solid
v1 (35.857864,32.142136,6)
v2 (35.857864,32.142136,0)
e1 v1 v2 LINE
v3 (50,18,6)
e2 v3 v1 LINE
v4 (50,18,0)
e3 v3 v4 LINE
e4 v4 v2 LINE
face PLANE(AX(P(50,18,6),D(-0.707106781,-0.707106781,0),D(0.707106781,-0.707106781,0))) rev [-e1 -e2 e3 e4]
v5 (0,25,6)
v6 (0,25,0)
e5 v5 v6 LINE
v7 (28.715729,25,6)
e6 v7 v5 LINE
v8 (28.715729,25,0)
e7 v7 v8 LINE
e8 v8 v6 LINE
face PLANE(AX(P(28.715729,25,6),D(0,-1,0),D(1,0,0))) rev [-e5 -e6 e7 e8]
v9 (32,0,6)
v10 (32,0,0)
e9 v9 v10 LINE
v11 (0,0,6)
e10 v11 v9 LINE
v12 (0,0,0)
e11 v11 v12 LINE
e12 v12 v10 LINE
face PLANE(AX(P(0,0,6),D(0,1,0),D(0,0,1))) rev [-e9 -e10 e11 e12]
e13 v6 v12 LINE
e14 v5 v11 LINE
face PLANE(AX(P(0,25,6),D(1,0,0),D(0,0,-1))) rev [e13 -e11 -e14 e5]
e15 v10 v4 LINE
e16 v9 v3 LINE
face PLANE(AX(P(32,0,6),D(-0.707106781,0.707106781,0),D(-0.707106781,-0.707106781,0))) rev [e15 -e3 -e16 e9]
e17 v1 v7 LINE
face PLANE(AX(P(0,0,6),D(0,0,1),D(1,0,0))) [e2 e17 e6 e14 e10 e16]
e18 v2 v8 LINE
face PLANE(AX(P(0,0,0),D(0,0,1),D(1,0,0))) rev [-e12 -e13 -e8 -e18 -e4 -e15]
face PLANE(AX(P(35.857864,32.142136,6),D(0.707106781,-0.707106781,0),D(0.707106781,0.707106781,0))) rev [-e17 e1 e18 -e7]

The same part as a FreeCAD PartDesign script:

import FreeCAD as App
import Part
import Sketcher

V = App.Vector
Q = App.Units.Quantity

doc = App.newDocument("Part")
body = doc.addObject("PartDesign::Body", "Body")

# Sketch on XY plane
sketch1 = doc.addObject("Sketcher::SketchObject", "Sketch")
body.addObject(sketch1)
sketch1.AttachmentSupport = (doc.XY_Plane, [""])
sketch1.MapMode = "FlatFace"
sketch1.addGeometry([
    Part.LineSegment(V(0, 0, 0), V(32, 0, 0)),  # 0
    Part.LineSegment(V(32, 0, 0), V(50, 18, 0)),  # 1
    Part.LineSegment(V(50, 18, 0), V(36, 32, 0)),  # 2
    Part.LineSegment(V(36, 32, 0), V(29, 25, 0)),  # 3
    Part.LineSegment(V(29, 25, 0), V(0, 25, 0)),  # 4
    Part.LineSegment(V(0, 25, 0), V(0, 0, 0)),  # 5
], False)
sketch1.addConstraint([
    Sketcher.Constraint("Coincident", 0, 2, 1, 1),
    Sketcher.Constraint("Coincident", 1, 2, 2, 1),
    Sketcher.Constraint("Coincident", 2, 2, 3, 1),
    Sketcher.Constraint("Coincident", 3, 2, 4, 1),
    Sketcher.Constraint("Coincident", 4, 2, 5, 1),
    Sketcher.Constraint("Coincident", 5, 2, 0, 1),
    Sketcher.Constraint("Horizontal", 0),
    Sketcher.Constraint("Horizontal", 4),
    Sketcher.Constraint("Vertical", 5),
    Sketcher.Constraint("Coincident", 5, 2, -1, 1),
    Sketcher.Constraint("Perpendicular", 1, 2),
    Sketcher.Constraint("Perpendicular", 2, 3),
    Sketcher.Constraint("DistanceX", 0, 1, 0, 2, 32.0),
    Sketcher.Constraint("DistanceY", 5, 2, 5, 1, 25.0),
    Sketcher.Constraint("Angle", 1, Q("45 deg")),
    Sketcher.Constraint("Distance", 2, 20.0),
    Sketcher.Constraint("DistanceX", -1, 1, 1, 2, 50.0),
])
pad1 = doc.addObject("PartDesign::Pad", "Pad")
body.addObject(pad1)
pad1.Profile = sketch1
pad1.Length = 6

doc.recompute()
